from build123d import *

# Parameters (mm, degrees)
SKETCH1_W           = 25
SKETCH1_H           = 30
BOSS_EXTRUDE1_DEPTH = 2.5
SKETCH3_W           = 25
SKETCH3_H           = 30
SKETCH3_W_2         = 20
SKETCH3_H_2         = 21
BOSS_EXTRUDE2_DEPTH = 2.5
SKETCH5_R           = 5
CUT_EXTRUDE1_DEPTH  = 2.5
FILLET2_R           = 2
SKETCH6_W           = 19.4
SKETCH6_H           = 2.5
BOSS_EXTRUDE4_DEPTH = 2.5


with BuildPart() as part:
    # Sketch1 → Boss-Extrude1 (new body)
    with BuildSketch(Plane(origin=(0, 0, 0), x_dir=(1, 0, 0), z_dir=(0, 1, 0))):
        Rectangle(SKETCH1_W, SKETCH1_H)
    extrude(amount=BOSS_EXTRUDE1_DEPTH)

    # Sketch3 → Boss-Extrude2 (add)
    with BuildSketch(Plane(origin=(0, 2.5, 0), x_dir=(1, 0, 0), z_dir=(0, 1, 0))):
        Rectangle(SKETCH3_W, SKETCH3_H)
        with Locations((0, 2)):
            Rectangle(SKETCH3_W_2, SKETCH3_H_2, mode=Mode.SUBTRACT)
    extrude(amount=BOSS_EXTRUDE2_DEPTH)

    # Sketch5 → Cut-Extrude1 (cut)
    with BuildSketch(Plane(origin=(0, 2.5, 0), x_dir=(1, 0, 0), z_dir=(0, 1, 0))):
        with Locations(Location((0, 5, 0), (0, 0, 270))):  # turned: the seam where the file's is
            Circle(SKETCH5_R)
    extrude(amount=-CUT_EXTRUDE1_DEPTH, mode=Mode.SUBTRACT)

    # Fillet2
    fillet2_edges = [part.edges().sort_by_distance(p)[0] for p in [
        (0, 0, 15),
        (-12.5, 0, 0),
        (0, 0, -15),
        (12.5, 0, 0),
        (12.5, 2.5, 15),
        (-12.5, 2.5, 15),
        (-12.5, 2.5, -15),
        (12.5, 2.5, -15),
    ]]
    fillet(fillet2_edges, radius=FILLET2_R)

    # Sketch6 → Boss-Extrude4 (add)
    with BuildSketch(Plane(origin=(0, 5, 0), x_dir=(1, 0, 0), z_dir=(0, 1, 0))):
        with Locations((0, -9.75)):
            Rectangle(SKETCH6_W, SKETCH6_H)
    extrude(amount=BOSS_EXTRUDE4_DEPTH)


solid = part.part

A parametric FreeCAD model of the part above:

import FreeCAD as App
import Part
import Sketcher


def edges_at(feature, points):
    """Names of the edges that pass closest to the given points."""
    edges = feature.Shape.Edges
    near = lambda p: min(range(len(edges)), key=lambda i: edges[i].distToShape(Part.Vertex(*p))[0])
    return sorted({f"Edge{near(p) + 1}" for p in points})

doc = App.newDocument("Part")
body = doc.addObject("PartDesign::Body", "Body")

sketch1 = body.newObject("Sketcher::SketchObject", "Sketch")
sketch1.AttachmentSupport = (doc.getObject("XZ_Plane"), [""])
sketch1.MapMode = "FlatFace"
sketch1.addGeometry([
    Part.LineSegment(App.Vector(-12.5, -15, 0), App.Vector(-12.5, 15, 0)),
    Part.LineSegment(App.Vector(-12.5, 15, 0), App.Vector(12.5, 15, 0)),
    Part.LineSegment(App.Vector(12.5, 15, 0), App.Vector(12.5, -15, 0)),
    Part.LineSegment(App.Vector(12.5, -15, 0), App.Vector(-12.5, -15, 0)),
], False)
sketch1.addConstraint([
    Sketcher.Constraint("Coincident", 0, 2, 1, 1),
    Sketcher.Constraint("Coincident", 1, 2, 2, 1),
    Sketcher.Constraint("Coincident", 2, 2, 3, 1),
    Sketcher.Constraint("Coincident", 3, 2, 0, 1),
    Sketcher.Constraint("Vertical", 0),
    Sketcher.Constraint("Horizontal", 1),
    Sketcher.Constraint("Vertical", 2),
    Sketcher.Constraint("Horizontal", 3),
    Sketcher.Constraint("Symmetric", 0, 2, 2, 2, -1, 1),
    Sketcher.Constraint("DistanceX", 1, 1, 1, 2, 25.0),
    Sketcher.Constraint("DistanceY", 0, 1, 0, 2, 30.0),
])
pad1 = body.newObject("PartDesign::Pad", "Pad")
pad1.Profile = sketch1
pad1.Length = 2.5
pad1.Reversed = True

sketch2 = body.newObject("Sketcher::SketchObject", "Sketch001")
sketch2.AttachmentSupport = (doc.getObject("XZ_Plane"), [""])
sketch2.MapMode = "FlatFace"
sketch2.AttachmentOffset = App.Placement(App.Vector(0, 0, -2.5), App.Rotation())
sketch2.addGeometry([
    Part.LineSegment(App.Vector(-12.5, -15, 0), App.Vector(-12.5, 15, 0)),
    Part.LineSegment(App.Vector(-12.5, 15, 0), App.Vector(12.5, 15, 0)),
    Part.LineSegment(App.Vector(12.5, 15, 0), App.Vector(12.5, -15, 0)),
    Part.LineSegment(App.Vector(12.5, -15, 0), App.Vector(-12.5, -15, 0)),
    Part.LineSegment(App.Vector(10, 8.5, 0), App.Vector(-10, 8.5, 0)),
    Part.LineSegment(App.Vector(-10, 8.5, 0), App.Vector(-10, -12.5, 0)),
    Part.LineSegment(App.Vector(-10, -12.5, 0), App.Vector(10, -12.5, 0)),
    Part.LineSegment(App.Vector(10, -12.5, 0), App.Vector(10, 8.5, 0)),
], False)
sketch2.addConstraint([
    Sketcher.Constraint("Coincident", 0, 2, 1, 1),
    Sketcher.Constraint("Coincident", 1, 2, 2, 1),
    Sketcher.Constraint("Coincident", 2, 2, 3, 1),
    Sketcher.Constraint("Coincident", 3, 2, 0, 1),
    Sketcher.Constraint("Coincident", 4, 2, 5, 1),
    Sketcher.Constraint("Coincident", 5, 2, 6, 1),
    Sketcher.Constraint("Coincident", 6, 2, 7, 1),
    Sketcher.Constraint("Coincident", 7, 2, 4, 1),
    Sketcher.Constraint("Vertical", 0),
    Sketcher.Constraint("Horizontal", 1),
    Sketcher.Constraint("Vertical", 2),
    Sketcher.Constraint("Horizontal", 3),
    Sketcher.Constraint("Horizontal", 4),
    Sketcher.Constraint("Vertical", 5),
    Sketcher.Constraint("Horizontal", 6),
    Sketcher.Constraint("Vertical", 7),
    Sketcher.Constraint("Symmetric", 0, 2, 2, 2, -1, 1),
    Sketcher.Constraint("DistanceX", 1, 1, 1, 2, 25.0),
    Sketcher.Constraint("DistanceX", 4, 2, 4, 1, 20.0),
    Sketcher.Constraint("DistanceY", 0, 1, 0, 2, 30.0),
    Sketcher.Constraint("DistanceY", 5, 2, 5, 1, 21.0),
    Sketcher.Constraint("DistanceX", 4, 2, -1, 1, 10.0),
    Sketcher.Constraint("DistanceY", -1, 1, 4, 2, 8.5),
])
pad2 = body.newObject("PartDesign::Pad", "Pad001")
pad2.Profile = sketch2
pad2.Length = 2.5
pad2.Reversed = True

sketch3 = body.newObject("Sketcher::SketchObject", "Sketch002")
sketch3.AttachmentSupport = (doc.getObject("XZ_Plane"), [""])
sketch3.MapMode = "FlatFace"
sketch3.AttachmentOffset = App.Placement(App.Vector(0, 0, -2.5), App.Rotation())
sketch3.addGeometry(Part.Circle(App.Vector(0, -5, 0), App.Vector(0, 0, 1), 5), False)
sketch3.addConstraint([
    Sketcher.Constraint("PointOnObject", 0, 3, -2),
    Sketcher.Constraint("Diameter", 0, 10.0),
    Sketcher.Constraint("DistanceY", 0, 3, -1, 1, 5.0),
])
pocket1 = body.newObject("PartDesign::Pocket", "Pocket")
pocket1.Profile = sketch3
pocket1.Length = 2.5
pocket1.Reversed = True
doc.recompute()

fillet = body.newObject("PartDesign::Fillet", "Fillet")
fillet.Base = (pocket1, edges_at(pocket1, [
    (0, 0, 15),
    (-12.5, 0, 0),
    (0, 0, -15),
    (12.5, 0, 0),
    (12.5, 2.5, 15),
    (-12.5, 2.5, 15),
    (-12.5, 2.5, -15),
    (12.5, 2.5, -15),
]))
fillet.Radius = 2

sketch4 = body.newObject("Sketcher::SketchObject", "Sketch003")
sketch4.AttachmentSupport = (doc.getObject("XZ_Plane"), [""])
sketch4.MapMode = "FlatFace"
sketch4.AttachmentOffset = App.Placement(App.Vector(0, 0, -5), App.Rotation())
sketch4.addGeometry([
    Part.LineSegment(App.Vector(-9.7, 8.5, 0), App.Vector(-9.7, 11, 0)),
    Part.LineSegment(App.Vector(-9.7, 11, 0), App.Vector(9.7, 11, 0)),
    Part.LineSegment(App.Vector(9.7, 11, 0), App.Vector(9.7, 8.5, 0)),
    Part.LineSegment(App.Vector(9.7, 8.5, 0), App.Vector(-9.7, 8.5, 0)),
], False)
sketch4.addConstraint([
    Sketcher.Constraint("Coincident", 0, 2, 1, 1),
    Sketcher.Constraint("Coincident", 1, 2, 2, 1),
    Sketcher.Constraint("Coincident", 2, 2, 3, 1),
    Sketcher.Constraint("Coincident", 3, 2, 0, 1),
    Sketcher.Constraint("Vertical", 0),
    Sketcher.Constraint("Horizontal", 1),
    Sketcher.Constraint("Vertical", 2),
    Sketcher.Constraint("Horizontal", 3),
    Sketcher.Constraint("DistanceX", 1, 1, 1, 2, 19.4),
    Sketcher.Constraint("DistanceY", 0, 1, 0, 2, 2.5),
    Sketcher.Constraint("DistanceY", -1, 1, 0, 2, 11.0),
    Sketcher.Constraint("DistanceX", 0, 2, -1, 1, 9.7),
])
pad3 = body.newObject("PartDesign::Pad", "Pad002")
pad3.Profile = sketch4
pad3.Length = 2.5
pad3.Reversed = True

doc.recompute()
